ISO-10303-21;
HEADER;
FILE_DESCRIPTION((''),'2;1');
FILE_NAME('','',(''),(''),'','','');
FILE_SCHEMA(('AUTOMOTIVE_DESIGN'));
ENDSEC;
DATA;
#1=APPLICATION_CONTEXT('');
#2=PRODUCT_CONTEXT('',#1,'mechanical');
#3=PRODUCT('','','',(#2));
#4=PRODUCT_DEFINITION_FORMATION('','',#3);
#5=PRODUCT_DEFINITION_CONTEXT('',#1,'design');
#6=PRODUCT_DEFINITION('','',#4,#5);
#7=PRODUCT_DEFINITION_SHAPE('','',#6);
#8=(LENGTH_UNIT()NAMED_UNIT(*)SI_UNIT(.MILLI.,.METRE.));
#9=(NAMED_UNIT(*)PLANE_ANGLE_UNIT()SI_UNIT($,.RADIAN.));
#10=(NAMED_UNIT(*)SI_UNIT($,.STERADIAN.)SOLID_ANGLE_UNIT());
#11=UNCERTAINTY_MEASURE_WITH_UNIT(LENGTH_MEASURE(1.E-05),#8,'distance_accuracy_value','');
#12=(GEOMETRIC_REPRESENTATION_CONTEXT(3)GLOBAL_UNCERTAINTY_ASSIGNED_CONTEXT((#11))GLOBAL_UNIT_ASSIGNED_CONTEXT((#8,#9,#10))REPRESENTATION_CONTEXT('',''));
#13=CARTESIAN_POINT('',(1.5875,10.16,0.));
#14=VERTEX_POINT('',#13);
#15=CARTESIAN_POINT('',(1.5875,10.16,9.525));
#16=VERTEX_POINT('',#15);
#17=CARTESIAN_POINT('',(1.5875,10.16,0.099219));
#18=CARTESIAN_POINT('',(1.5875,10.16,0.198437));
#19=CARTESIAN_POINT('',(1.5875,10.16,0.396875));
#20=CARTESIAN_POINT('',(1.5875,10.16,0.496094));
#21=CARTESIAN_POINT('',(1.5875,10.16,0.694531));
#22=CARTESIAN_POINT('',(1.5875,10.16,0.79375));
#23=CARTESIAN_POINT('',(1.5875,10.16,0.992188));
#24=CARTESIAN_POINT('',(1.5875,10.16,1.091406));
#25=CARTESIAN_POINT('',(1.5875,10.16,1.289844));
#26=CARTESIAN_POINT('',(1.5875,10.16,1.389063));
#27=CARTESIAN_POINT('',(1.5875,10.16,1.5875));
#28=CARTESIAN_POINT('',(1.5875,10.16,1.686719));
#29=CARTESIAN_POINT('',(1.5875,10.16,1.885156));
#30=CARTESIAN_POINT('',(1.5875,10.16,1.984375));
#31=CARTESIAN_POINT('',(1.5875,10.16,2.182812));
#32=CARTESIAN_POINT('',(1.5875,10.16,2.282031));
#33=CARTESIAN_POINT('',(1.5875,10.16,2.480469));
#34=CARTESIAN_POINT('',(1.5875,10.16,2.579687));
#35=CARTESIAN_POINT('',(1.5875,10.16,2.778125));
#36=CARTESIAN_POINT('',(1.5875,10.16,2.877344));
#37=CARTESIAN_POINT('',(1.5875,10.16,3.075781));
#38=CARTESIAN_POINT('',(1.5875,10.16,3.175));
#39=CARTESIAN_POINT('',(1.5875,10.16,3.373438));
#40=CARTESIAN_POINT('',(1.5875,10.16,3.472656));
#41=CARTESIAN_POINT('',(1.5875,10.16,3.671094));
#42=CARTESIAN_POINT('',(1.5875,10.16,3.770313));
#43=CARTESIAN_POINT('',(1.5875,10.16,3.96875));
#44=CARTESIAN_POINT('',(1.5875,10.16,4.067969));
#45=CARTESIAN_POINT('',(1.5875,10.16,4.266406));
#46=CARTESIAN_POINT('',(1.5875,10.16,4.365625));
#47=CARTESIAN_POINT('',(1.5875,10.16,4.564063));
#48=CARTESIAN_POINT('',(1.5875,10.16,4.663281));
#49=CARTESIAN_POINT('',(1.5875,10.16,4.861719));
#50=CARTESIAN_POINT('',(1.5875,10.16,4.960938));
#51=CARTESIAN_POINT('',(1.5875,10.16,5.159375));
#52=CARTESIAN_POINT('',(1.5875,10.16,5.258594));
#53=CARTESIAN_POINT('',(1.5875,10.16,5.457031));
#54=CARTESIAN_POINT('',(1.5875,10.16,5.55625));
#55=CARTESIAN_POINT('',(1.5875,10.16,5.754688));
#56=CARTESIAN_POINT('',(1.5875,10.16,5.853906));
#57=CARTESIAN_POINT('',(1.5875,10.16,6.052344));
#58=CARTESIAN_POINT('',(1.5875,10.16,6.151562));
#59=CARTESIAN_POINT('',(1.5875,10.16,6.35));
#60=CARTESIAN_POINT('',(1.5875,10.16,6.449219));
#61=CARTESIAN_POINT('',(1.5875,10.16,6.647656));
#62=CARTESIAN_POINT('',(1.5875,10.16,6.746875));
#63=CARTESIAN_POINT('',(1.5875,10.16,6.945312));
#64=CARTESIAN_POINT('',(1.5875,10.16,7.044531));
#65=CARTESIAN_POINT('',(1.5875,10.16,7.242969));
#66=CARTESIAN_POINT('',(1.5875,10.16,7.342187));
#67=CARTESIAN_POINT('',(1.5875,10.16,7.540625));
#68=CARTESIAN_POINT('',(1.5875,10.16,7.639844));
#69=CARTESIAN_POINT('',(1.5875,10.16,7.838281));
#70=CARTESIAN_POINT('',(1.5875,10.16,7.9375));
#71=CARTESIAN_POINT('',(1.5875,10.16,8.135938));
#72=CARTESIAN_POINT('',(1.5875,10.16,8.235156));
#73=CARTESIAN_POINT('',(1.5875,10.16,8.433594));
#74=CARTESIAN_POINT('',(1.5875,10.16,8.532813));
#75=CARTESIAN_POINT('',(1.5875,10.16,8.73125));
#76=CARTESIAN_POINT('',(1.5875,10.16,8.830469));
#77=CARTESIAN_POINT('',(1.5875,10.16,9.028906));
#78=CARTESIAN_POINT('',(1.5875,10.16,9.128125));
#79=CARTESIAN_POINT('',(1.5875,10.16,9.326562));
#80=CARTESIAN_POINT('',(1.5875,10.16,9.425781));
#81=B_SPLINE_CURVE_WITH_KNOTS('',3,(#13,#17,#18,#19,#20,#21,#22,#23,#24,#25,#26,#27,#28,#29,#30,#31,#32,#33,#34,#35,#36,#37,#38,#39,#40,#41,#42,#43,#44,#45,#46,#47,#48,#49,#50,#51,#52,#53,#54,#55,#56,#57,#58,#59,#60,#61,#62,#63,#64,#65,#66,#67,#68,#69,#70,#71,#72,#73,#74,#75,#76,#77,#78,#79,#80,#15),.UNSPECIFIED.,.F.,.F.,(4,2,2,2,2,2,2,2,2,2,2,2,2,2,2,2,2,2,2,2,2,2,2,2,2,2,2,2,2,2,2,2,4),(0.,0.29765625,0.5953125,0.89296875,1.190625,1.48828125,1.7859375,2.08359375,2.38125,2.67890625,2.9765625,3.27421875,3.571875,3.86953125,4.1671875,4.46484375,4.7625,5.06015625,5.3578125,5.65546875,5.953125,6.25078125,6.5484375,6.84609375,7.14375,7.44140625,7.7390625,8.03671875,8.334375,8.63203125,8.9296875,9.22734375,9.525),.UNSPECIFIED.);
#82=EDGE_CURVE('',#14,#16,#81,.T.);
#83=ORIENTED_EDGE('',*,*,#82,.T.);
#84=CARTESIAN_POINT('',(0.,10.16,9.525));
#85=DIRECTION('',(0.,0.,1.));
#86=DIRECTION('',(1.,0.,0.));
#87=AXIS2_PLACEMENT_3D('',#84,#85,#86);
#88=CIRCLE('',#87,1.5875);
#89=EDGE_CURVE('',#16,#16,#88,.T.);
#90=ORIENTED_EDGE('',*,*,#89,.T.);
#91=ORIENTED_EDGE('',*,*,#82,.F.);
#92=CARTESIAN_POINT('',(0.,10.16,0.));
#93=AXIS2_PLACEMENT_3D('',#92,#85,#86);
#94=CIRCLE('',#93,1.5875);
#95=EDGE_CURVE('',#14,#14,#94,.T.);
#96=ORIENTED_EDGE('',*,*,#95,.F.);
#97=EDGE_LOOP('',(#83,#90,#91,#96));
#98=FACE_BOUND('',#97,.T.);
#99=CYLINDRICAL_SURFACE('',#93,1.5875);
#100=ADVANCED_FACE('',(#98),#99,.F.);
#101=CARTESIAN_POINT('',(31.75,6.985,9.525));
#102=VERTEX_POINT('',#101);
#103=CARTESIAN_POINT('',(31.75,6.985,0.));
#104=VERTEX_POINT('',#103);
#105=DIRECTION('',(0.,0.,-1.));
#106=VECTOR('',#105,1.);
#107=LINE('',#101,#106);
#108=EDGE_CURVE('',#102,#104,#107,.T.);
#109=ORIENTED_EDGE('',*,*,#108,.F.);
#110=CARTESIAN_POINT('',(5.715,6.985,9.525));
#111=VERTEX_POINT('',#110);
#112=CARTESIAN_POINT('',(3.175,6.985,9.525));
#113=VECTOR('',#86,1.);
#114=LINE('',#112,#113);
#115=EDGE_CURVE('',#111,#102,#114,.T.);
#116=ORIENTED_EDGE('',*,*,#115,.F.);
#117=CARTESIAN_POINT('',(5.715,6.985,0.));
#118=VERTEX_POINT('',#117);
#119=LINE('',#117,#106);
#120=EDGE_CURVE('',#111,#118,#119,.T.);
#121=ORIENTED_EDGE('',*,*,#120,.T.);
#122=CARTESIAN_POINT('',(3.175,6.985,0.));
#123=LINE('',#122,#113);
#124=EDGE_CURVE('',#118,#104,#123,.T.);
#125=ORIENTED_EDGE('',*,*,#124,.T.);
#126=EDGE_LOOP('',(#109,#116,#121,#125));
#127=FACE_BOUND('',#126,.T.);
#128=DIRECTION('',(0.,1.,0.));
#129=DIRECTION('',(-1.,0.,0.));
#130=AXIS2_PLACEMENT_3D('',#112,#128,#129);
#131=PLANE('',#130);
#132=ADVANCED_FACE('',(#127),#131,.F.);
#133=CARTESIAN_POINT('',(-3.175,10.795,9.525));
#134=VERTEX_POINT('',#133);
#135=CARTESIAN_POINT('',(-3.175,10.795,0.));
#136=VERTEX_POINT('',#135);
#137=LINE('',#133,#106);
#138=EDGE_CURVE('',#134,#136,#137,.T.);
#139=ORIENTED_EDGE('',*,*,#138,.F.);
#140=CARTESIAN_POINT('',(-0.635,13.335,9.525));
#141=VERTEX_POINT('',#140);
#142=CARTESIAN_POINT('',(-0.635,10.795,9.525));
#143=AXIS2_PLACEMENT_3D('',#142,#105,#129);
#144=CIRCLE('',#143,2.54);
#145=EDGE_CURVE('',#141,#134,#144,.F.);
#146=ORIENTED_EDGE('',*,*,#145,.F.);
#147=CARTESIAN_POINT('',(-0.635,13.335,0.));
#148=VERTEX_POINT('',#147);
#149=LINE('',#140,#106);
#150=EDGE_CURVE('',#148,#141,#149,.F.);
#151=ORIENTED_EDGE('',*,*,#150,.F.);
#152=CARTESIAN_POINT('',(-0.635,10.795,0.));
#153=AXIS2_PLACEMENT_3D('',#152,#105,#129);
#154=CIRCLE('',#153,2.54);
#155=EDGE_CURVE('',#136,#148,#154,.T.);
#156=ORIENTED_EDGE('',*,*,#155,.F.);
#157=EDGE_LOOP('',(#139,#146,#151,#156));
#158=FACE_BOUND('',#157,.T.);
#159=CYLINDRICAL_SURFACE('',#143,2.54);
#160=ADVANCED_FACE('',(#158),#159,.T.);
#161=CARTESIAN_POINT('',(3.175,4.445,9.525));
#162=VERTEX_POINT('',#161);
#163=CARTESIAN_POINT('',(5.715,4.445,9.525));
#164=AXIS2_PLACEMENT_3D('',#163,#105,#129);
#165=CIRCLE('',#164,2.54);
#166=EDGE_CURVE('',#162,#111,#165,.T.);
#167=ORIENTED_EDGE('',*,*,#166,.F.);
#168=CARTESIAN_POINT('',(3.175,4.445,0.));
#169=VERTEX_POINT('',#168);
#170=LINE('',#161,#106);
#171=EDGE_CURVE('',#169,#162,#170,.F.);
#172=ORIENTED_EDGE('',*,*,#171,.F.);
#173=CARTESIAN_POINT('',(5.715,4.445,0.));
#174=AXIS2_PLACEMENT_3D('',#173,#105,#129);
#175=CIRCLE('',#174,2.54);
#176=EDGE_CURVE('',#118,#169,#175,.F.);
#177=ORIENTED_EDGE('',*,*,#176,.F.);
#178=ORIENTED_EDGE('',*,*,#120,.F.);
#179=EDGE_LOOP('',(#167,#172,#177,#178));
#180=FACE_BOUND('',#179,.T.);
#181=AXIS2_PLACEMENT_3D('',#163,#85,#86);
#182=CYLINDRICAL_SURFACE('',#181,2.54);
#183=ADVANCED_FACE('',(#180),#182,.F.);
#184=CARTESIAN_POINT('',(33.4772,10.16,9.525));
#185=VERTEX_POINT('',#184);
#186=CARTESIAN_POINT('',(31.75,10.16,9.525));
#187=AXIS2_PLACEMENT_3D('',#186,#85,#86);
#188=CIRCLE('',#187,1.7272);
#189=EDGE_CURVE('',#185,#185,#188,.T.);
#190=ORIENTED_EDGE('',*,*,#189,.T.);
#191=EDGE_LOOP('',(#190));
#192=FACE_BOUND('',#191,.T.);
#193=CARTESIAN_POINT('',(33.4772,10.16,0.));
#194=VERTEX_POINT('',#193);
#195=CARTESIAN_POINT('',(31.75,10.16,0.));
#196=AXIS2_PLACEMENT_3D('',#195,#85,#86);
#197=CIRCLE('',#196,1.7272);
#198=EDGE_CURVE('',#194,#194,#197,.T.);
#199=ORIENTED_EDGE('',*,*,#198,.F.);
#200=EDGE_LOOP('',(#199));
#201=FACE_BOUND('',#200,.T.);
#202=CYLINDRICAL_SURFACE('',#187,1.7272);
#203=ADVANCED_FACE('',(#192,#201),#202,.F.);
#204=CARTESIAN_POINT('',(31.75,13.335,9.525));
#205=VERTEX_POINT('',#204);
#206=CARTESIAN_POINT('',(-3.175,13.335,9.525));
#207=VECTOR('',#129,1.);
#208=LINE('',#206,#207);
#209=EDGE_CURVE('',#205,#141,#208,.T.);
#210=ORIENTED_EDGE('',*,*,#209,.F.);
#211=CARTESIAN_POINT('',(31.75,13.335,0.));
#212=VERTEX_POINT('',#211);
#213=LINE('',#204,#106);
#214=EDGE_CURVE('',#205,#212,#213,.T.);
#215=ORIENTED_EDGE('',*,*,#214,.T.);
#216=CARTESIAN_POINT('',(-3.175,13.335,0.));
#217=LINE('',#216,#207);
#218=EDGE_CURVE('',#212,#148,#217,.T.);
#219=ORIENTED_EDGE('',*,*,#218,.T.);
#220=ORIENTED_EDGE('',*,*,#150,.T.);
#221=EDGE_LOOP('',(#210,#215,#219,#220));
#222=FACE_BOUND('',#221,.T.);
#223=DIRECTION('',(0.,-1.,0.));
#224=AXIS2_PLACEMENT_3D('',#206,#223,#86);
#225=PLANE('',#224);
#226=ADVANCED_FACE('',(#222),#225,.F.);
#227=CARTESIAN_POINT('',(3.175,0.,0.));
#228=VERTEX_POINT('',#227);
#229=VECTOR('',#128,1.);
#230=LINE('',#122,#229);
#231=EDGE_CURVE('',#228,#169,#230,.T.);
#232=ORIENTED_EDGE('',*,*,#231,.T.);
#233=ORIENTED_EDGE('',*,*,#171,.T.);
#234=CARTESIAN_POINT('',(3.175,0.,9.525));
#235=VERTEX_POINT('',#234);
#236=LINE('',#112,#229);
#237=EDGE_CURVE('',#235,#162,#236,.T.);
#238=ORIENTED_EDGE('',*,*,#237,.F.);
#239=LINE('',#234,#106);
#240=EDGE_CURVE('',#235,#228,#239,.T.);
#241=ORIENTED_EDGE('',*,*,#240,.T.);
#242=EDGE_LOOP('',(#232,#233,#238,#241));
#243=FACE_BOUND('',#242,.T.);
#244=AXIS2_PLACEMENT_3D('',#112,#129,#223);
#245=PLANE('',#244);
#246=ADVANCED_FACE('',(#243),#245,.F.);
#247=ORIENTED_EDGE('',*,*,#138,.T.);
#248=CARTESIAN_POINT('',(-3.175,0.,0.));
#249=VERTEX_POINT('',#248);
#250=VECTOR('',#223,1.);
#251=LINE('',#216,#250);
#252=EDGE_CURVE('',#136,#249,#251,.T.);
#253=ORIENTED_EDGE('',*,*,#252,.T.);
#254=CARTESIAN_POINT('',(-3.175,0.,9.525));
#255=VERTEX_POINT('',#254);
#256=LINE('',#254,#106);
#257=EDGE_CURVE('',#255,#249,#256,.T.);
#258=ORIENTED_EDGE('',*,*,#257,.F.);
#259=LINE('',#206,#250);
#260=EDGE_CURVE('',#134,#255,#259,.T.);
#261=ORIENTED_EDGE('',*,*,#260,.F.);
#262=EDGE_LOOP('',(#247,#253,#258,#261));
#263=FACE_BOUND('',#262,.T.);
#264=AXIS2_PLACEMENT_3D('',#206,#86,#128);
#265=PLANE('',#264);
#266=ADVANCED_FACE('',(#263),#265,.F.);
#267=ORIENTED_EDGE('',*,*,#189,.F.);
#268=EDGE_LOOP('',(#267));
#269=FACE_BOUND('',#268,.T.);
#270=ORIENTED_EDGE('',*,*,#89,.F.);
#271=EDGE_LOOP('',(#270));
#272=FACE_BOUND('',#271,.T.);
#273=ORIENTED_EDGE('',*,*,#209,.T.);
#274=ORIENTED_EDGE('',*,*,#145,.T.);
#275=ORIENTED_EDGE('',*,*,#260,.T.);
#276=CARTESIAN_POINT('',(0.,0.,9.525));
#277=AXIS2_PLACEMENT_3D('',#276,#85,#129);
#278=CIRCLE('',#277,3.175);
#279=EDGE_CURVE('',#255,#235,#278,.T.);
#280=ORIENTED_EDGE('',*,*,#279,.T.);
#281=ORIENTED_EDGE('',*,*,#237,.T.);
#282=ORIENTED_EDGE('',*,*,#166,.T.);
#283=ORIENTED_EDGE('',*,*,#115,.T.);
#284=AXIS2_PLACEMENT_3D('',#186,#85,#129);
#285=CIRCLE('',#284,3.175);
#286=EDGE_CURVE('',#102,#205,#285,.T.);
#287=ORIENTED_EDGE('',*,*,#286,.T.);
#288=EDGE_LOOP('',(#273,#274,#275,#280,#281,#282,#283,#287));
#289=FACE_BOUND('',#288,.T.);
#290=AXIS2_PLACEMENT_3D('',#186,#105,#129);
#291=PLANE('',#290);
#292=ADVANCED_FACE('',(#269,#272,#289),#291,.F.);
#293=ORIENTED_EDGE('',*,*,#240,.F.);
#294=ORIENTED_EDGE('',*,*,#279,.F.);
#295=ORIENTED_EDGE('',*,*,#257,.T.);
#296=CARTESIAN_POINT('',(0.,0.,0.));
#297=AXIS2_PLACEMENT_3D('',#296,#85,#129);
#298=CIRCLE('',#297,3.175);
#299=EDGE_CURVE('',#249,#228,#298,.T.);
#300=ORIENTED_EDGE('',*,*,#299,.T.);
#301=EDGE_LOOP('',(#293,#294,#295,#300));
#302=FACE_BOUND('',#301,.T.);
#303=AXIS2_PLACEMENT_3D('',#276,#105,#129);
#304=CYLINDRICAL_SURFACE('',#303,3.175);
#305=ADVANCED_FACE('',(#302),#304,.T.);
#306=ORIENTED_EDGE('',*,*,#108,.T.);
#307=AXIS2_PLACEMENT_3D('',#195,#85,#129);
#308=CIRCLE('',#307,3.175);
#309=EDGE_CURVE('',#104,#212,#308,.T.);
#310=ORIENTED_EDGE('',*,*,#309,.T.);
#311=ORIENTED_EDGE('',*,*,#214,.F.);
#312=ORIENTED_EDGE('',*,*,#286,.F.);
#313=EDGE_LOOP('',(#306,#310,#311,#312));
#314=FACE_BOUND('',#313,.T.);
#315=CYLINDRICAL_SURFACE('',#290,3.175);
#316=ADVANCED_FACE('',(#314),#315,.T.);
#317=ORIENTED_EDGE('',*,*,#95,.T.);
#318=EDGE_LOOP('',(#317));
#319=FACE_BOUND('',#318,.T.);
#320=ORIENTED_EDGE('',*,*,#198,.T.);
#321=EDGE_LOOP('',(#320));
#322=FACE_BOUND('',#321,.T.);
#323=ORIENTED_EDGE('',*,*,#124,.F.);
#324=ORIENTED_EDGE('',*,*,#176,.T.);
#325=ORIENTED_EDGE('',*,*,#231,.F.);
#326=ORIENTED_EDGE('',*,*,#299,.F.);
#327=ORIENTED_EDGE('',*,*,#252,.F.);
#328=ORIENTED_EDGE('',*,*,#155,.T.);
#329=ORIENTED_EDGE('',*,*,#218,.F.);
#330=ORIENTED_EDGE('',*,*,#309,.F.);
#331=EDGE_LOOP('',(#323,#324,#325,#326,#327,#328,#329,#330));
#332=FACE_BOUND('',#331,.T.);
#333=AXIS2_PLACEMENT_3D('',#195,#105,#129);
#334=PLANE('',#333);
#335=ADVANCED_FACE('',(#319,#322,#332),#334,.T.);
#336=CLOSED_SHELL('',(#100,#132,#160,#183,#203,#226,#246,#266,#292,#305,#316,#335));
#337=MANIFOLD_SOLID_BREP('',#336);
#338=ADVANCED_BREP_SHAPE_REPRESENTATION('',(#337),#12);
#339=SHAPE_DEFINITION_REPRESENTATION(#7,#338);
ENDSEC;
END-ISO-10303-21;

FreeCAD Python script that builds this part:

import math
import FreeCAD as App
import Part
import Sketcher
from FreeCAD import Vector
Q = App.Units.Quantity


def edges_at(feature, points):
    """Names of the edges that pass closest to the given points."""
    edges = feature.Shape.Edges
    near = lambda p: min(range(len(edges)), key=lambda i: edges[i].distToShape(Part.Vertex(*p))[0])
    return sorted({f"Edge{near(p) + 1}" for p in points})

doc = App.newDocument("Part")
body = doc.addObject("PartDesign::Body", "Body")

sketch1 = body.newObject("Sketcher::SketchObject", "Sketch")
sketch1.AttachmentSupport = (doc.getObject("XY_Plane"), [""])
sketch1.MapMode = "FlatFace"
sketch1.addGeometry(Part.LineSegment(Vector(3.2, 0, 0), Vector(3.2, 7, 0)), False)
sketch1.addGeometry(Part.LineSegment(Vector(3.2, 7, 0), Vector(31.8, 7, 0)), False)
sketch1.addGeometry(Part.ArcOfCircle(Part.Circle(Vector(31.8, 10.2, 0), Vector(0, 0, 1), 3.2), math.radians(-90), math.radians(90)), False)
sketch1.addGeometry(Part.LineSegment(Vector(31.8, 13.3, 0), Vector(-3.2, 13.3, 0)), False)
sketch1.addGeometry(Part.LineSegment(Vector(-3.2, 13.3, 0), Vector(-3.2, 0, 0)), False)
sketch1.addGeometry(Part.ArcOfCircle(Part.Circle(Vector(0, 0, 0), Vector(0, 0, 1), 3.2), math.radians(180), math.radians(360)), False)
sketch1.addConstraint(Sketcher.Constraint("Coincident", 0, 2, 1, 1))
sketch1.addConstraint(Sketcher.Constraint("Tangent", 1, 2, 2, 1))
sketch1.addConstraint(Sketcher.Constraint("Tangent", 2, 2, 3, 1))
sketch1.addConstraint(Sketcher.Constraint("Coincident", 3, 2, 4, 1))
sketch1.addConstraint(Sketcher.Constraint("Tangent", 4, 2, 5, 1))
sketch1.addConstraint(Sketcher.Constraint("Tangent", 5, 2, 0, 1))
sketch1.addConstraint(Sketcher.Constraint("Vertical", 0))
sketch1.addConstraint(Sketcher.Constraint("Horizontal", 1))
sketch1.addConstraint(Sketcher.Constraint("Horizontal", 3))
sketch1.addConstraint(Sketcher.Constraint("Vertical", 4))
sketch1.addConstraint(Sketcher.Constraint("Coincident", 5, 3, -1, 1))
sketch1.addConstraint(Sketcher.Constraint("Equal", 2, 5))
sketch1.addConstraint(Sketcher.Constraint("Radius", 2, Q("0.125 in")))
sketch1.addConstraint(Sketcher.Constraint("DistanceY", -1, 1, 2, 3, Q("0.4 in")))
sketch1.addConstraint(Sketcher.Constraint("DistanceX", 1, 1, 1, 2, Q("1.125 in")))
pad1 = body.newObject("PartDesign::Pad", "Pad")
pad1.Profile = sketch1
pad1.Length = Q("0.375 in")
doc.recompute()

fillet = body.newObject("PartDesign::Fillet", "Fillet")
fillet.Base = (pad1, edges_at(pad1, [(3.175, 6.985, 4.763), (-3.175, 13.335, 4.763)]))
fillet.Radius = Q("0.1 in")

sketch2 = body.newObject("Sketcher::SketchObject", "Sketch001")
sketch2.AttachmentSupport = (doc.getObject("XY_Plane"), [""])
sketch2.MapMode = "FlatFace"
sketch2.AttachmentOffset = App.Placement(Vector(0, 0, 0.375 * 25.4), App.Rotation())
sketch2.addGeometry(Part.Circle(Vector(0, 10.2, 0), Vector(0, 0, 1), 1.6), False)
sketch2.addConstraint(Sketcher.Constraint("PointOnObject", 0, 3, -2))
sketch2.addConstraint(Sketcher.Constraint("Diameter", 0, Q("0.125 in")))
sketch2.addConstraint(Sketcher.Constraint("DistanceY", -1, 1, 0, 3, Q("0.4 in")))
pocket1 = body.newObject("PartDesign::Pocket", "Pocket")
pocket1.Profile = sketch2
pocket1.Type = "ThroughAll"

sketch3 = body.newObject("Sketcher::SketchObject", "Sketch002")
sketch3.AttachmentSupport = (doc.getObject("XY_Plane"), [""])
sketch3.MapMode = "FlatFace"
sketch3.AttachmentOffset = App.Placement(Vector(0, 0, 0.375 * 25.4), App.Rotation())
sketch3.addGeometry(Part.Circle(Vector(31.8, 10.2, 0), Vector(0, 0, 1), 1.7), False)
sketch3.addConstraint(Sketcher.Constraint("Diameter", 0, Q("0.136 in")))
sketch3.addConstraint(Sketcher.Constraint("DistanceY", -1, 1, 0, 3, Q("0.4 in")))
sketch3.addConstraint(Sketcher.Constraint("DistanceX", -1, 1, 0, 3, Q("1.25 in")))
doc.recompute()
hole = body.newObject("PartDesign::Hole", "Hole")
hole.Profile = sketch3
hole.ThreadType = "None"
hole.Diameter = Q("0.136 in")
hole.DepthType = "ThroughAll"

doc.recompute()
